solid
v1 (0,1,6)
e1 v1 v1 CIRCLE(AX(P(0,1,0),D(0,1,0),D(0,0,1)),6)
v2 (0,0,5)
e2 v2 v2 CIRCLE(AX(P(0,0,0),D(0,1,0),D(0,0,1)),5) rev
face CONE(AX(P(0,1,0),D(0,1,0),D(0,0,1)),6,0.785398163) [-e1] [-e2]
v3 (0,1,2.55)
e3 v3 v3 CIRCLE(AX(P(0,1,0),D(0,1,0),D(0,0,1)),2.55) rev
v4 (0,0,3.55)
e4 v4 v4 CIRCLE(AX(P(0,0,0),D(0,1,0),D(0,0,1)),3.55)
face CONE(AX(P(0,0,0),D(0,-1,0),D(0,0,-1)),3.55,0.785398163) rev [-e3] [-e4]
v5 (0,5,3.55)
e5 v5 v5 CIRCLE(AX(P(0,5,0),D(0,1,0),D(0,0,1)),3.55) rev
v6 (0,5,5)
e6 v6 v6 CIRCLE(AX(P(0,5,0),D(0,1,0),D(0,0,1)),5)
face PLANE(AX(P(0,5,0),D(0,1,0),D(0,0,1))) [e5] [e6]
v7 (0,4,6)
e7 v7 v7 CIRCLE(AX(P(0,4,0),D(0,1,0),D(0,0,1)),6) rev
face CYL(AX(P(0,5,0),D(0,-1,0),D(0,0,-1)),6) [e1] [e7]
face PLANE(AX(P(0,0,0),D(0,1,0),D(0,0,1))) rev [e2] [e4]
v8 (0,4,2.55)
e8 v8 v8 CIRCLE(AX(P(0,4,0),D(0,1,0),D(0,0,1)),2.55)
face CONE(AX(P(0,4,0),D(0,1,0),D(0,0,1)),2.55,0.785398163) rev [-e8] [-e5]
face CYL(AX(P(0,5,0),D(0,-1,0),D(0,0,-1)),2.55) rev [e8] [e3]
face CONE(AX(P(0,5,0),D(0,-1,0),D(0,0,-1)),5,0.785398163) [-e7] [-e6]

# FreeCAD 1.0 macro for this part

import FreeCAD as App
import Part
import Sketcher


def edges_at(feature, points):
    """Names of the edges that pass closest to the given points."""
    edges = feature.Shape.Edges
    near = lambda p: min(range(len(edges)), key=lambda i: edges[i].distToShape(Part.Vertex(*p))[0])
    return sorted({f"Edge{near(p) + 1}" for p in points})

doc = App.newDocument("Part")
params = doc.addObject("Spreadsheet::Sheet", "Params")
for row, (alias, value) in enumerate([
    ("sketch1_diameter", "12 mm"),
    ("sketch1_diameter2", "5.1 mm"),
    ("pad1_length", "5 mm"),
    ("chamfer_size", "1 mm"),
], start=1):
    params.set(f"A{row}", alias)
    params.set(f"B{row}", "=" + value)
    params.setAlias(f"B{row}", alias)

body = doc.addObject("PartDesign::Body", "Body")

sketch1 = body.newObject("Sketcher::SketchObject", "Sketch")
sketch1.AttachmentSupport = (doc.getObject("XZ_Plane"), [""])
sketch1.MapMode = "FlatFace"
sketch1.addGeometry(Part.Circle(App.Vector(0, 0, 0), App.Vector(0, 0, 1), 6), False)
sketch1.addGeometry(Part.Circle(App.Vector(0, 0, 0), App.Vector(0, 0, 1), 2.5), False)
sketch1.addConstraint(Sketcher.Constraint("Coincident", 0, 3, -1, 1))
sketch1.addConstraint(Sketcher.Constraint("Coincident", 1, 3, -1, 1))
sketch1.addConstraint(Sketcher.Constraint("Diameter", 0, 12.0))
sketch1.addConstraint(Sketcher.Constraint("Diameter", 1, 5.1))
sketch1.setExpression("Constraints[2]", "Params.sketch1_diameter")
sketch1.setExpression("Constraints[3]", "Params.sketch1_diameter2")
pad1 = body.newObject("PartDesign::Pad", "Pad")
pad1.Profile = sketch1
pad1.setExpression("Length", "Params.pad1_length")
pad1.Reversed = True
doc.recompute()

chamfer = body.newObject("PartDesign::Chamfer", "Chamfer")
chamfer.Base = (pad1, edges_at(pad1, [
    (0, 5, -6),
    (0, 0, -6),
    (0, 0, -2.55),
    (0, 5, -2.55),
]))
chamfer.setExpression("Size", "Params.chamfer_size")

doc.recompute()
